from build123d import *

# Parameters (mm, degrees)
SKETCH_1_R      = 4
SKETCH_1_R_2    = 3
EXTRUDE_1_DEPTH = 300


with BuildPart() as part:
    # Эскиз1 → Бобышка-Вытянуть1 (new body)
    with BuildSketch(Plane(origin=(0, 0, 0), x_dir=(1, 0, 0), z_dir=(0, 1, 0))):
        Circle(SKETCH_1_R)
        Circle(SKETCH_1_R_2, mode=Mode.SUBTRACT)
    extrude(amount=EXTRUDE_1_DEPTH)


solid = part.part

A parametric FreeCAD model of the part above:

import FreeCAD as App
import Part
import Sketcher

V = App.Vector
Q = App.Units.Quantity

doc = App.newDocument("Part")
body = doc.addObject("PartDesign::Body", "Body")

sketch1 = body.newObject("Sketcher::SketchObject", "Sketch")
sketch1.AttachmentSupport = (doc.getObject("XZ_Plane"), [""])
sketch1.MapMode = "FlatFace"
sketch1.addGeometry(Part.Circle(V(0, 0, 0), V(0, 0, 1), 4), False)
sketch1.addGeometry(Part.Circle(V(0, 0, 0), V(0, 0, 1), 3), False)
sketch1.addConstraint(Sketcher.Constraint("Coincident", 0, 3, -1, 1))
sketch1.addConstraint(Sketcher.Constraint("Coincident", 1, 3, -1, 1))
sketch1.addConstraint(Sketcher.Constraint("Diameter", 0, Q("8 mm")))
sketch1.addConstraint(Sketcher.Constraint("Diameter", 1, Q("6 mm")))
pad1 = body.newObject("PartDesign::Pad", "Pad")
pad1.Profile = sketch1
pad1.Length = 300
pad1.Reversed = True

doc.recompute()
